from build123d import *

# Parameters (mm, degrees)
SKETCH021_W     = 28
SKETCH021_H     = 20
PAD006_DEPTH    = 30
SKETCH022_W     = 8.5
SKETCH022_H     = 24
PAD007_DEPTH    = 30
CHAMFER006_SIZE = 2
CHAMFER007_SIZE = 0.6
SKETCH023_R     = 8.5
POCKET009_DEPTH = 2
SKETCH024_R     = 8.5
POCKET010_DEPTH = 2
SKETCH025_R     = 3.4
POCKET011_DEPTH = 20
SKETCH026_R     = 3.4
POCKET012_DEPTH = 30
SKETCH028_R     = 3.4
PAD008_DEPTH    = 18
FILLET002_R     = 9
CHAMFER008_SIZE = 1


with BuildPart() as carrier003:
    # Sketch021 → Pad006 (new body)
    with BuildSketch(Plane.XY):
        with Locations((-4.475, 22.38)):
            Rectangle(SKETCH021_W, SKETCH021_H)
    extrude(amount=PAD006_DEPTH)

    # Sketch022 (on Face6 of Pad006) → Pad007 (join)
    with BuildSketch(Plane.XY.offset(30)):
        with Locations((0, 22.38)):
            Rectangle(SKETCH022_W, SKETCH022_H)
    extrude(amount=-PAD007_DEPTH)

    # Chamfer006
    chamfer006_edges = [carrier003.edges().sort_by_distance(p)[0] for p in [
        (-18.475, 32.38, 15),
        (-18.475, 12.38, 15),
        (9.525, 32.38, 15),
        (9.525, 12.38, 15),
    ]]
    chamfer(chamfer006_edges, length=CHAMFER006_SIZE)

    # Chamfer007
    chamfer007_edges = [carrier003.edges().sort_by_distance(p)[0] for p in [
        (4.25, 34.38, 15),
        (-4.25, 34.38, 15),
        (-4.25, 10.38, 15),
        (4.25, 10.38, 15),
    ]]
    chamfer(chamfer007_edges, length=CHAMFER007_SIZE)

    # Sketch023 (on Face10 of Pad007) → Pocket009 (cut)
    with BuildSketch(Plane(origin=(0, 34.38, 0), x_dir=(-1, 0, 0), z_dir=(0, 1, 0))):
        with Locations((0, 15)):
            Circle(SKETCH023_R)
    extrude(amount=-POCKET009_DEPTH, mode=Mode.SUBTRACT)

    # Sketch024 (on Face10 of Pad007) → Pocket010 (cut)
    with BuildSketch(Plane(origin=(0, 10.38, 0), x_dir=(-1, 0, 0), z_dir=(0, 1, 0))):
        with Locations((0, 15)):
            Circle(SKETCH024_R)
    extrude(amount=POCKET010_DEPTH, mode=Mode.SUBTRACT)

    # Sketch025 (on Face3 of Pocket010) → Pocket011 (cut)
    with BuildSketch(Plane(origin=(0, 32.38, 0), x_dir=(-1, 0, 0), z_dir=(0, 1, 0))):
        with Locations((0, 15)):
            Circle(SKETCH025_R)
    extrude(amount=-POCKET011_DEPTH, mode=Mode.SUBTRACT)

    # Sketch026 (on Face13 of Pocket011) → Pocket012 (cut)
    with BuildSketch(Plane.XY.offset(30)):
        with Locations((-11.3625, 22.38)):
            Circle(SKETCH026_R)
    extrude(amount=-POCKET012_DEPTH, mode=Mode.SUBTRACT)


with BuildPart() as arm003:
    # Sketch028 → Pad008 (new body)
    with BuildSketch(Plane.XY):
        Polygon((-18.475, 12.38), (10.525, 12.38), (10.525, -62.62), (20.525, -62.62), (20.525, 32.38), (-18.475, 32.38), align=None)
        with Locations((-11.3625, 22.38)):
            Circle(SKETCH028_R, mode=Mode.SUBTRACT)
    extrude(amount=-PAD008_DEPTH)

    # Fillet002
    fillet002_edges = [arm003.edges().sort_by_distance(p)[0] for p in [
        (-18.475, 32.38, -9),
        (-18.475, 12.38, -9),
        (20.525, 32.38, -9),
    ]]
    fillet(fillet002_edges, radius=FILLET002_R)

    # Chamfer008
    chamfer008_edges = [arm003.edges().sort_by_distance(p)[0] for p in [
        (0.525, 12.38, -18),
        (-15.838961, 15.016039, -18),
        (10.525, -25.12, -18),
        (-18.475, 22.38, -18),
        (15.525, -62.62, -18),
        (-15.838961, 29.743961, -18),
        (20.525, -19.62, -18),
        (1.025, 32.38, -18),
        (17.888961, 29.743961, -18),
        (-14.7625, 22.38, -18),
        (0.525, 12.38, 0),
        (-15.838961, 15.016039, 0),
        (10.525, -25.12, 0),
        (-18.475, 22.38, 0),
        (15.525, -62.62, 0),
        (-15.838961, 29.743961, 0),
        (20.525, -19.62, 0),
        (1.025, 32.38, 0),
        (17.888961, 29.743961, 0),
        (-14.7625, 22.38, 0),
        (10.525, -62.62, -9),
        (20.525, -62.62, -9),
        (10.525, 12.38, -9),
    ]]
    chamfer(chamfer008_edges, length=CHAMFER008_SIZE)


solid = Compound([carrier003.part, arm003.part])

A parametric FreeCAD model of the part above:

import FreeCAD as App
import Part
import Sketcher


def edges_at(feature, points):
    """Names of the edges that pass closest to the given points."""
    edges = feature.Shape.Edges
    near = lambda p: min(range(len(edges)), key=lambda i: edges[i].distToShape(Part.Vertex(*p))[0])
    return sorted({f"Edge{near(p) + 1}" for p in points})


def add_polygon(sketch, points):
    """Adds a closed chain of lines whose ends are joined by coincident constraints."""
    first, n = sketch.GeometryCount, len(points)
    for a, b in zip(points, points[1:] + points[:1]):
        sketch.addGeometry(Part.LineSegment(App.Vector(*a, 0), App.Vector(*b, 0)), False)
    for i in range(n):
        sketch.addConstraint(Sketcher.Constraint("Coincident", first + i, 2, first + (i + 1) % n, 1))

doc = App.newDocument("Part")
body = doc.addObject("PartDesign::Body", "Body")

# Sketch on XY plane
sketch1 = body.newObject("Sketcher::SketchObject", "Sketch")
sketch1.AttachmentSupport = (doc.getObject("XY_Plane"), [""])
sketch1.MapMode = "FlatFace"
add_polygon(sketch1, [(-18, 32), (-18, 12), (10, 12), (10, 32)])  # lines 0-3
sketch1.addConstraint(Sketcher.Constraint("Vertical", 0))
sketch1.addConstraint(Sketcher.Constraint("Horizontal", 1))
sketch1.addConstraint(Sketcher.Constraint("Vertical", 2))
sketch1.addConstraint(Sketcher.Constraint("Horizontal", 3))
sketch1.addConstraint(Sketcher.Constraint("DistanceX", 1, 1, 1, 2, 28.0))
sketch1.addConstraint(Sketcher.Constraint("DistanceY", 0, 2, 0, 1, 20.0))
sketch1.addConstraint(Sketcher.Constraint("DistanceY", -1, 1, 0, 2, 12.38))
sketch1.addConstraint(Sketcher.Constraint("DistanceX", 0, 2, -1, 1, 18.475))
pad1 = body.newObject("PartDesign::Pad", "Pad")
pad1.Profile = sketch1
pad1.Length = 30

# Sketch on XY plane
sketch2 = body.newObject("Sketcher::SketchObject", "Sketch001")
sketch2.AttachmentSupport = (doc.getObject("XY_Plane"), [""])
sketch2.MapMode = "FlatFace"
sketch2.AttachmentOffset = App.Placement(App.Vector(0, 0, 30), App.Rotation())
add_polygon(sketch2, [(-4, 34), (-4, 10), (4, 10), (4, 34)])  # lines 0-3
sketch2.addConstraint(Sketcher.Constraint("Vertical", 0))
sketch2.addConstraint(Sketcher.Constraint("Horizontal", 1))
sketch2.addConstraint(Sketcher.Constraint("Vertical", 2))
sketch2.addConstraint(Sketcher.Constraint("Horizontal", 3))
sketch2.addConstraint(Sketcher.Constraint("DistanceY", 0, 2, 0, 1, 24.0))
sketch2.addConstraint(Sketcher.Constraint("DistanceX", 1, 1, 1, 2, 8.5))
sketch2.addConstraint(Sketcher.Constraint("DistanceX", 0, 2, -1, 1, 4.25))
sketch2.addConstraint(Sketcher.Constraint("DistanceY", -1, 1, 0, 2, 10.38))
pad2 = body.newObject("PartDesign::Pad", "Pad001")
pad2.Profile = sketch2
pad2.Length = 30
pad2.Reversed = True
doc.recompute()

chamfer = body.newObject("PartDesign::Chamfer", "Chamfer")
chamfer.Base = (pad2, edges_at(pad2, [
    (-18.475, 32.38, 15),
    (-18.475, 12.38, 15),
    (9.525, 32.38, 15),
    (9.525, 12.38, 15),
]))
chamfer.Size = 2
doc.recompute()

chamfer2 = body.newObject("PartDesign::Chamfer", "Chamfer001")
chamfer2.Base = (chamfer, edges_at(chamfer, [
    (4.25, 34.38, 15),
    (-4.25, 34.38, 15),
    (-4.25, 10.38, 15),
    (4.25, 10.38, 15),
]))
chamfer2.Size = 0.6

# Sketch on XZ plane
sketch3 = body.newObject("Sketcher::SketchObject", "Sketch002")
sketch3.AttachmentSupport = (doc.getObject("XZ_Plane"), [""])
sketch3.MapMode = "FlatFace"
sketch3.AttachmentOffset = App.Placement(App.Vector(0, 0, -34.38), App.Rotation())
sketch3.addGeometry(Part.Circle(App.Vector(0, 15, 0), App.Vector(0, 0, 1), 8), False)
sketch3.addConstraint(Sketcher.Constraint("PointOnObject", 0, 3, -2))
sketch3.addConstraint(Sketcher.Constraint("Diameter", 0, 17.0))
sketch3.addConstraint(Sketcher.Constraint("DistanceY", -1, 1, 0, 3, 15.0))
pocket1 = body.newObject("PartDesign::Pocket", "Pocket")
pocket1.Profile = sketch3
pocket1.Length = 2
pocket1.Reversed = True

# Sketch on XZ plane
sketch4 = body.newObject("Sketcher::SketchObject", "Sketch003")
sketch4.AttachmentSupport = (doc.getObject("XZ_Plane"), [""])
sketch4.MapMode = "FlatFace"
sketch4.AttachmentOffset = App.Placement(App.Vector(0, 0, -10.38), App.Rotation())
sketch4.addGeometry(Part.Circle(App.Vector(0, 15, 0), App.Vector(0, 0, 1), 8), False)
sketch4.addConstraint(Sketcher.Constraint("PointOnObject", 0, 3, -2))
sketch4.addConstraint(Sketcher.Constraint("Diameter", 0, 17.0))
sketch4.addConstraint(Sketcher.Constraint("DistanceY", -1, 1, 0, 3, 15.0))
pocket2 = body.newObject("PartDesign::Pocket", "Pocket001")
pocket2.Profile = sketch4
pocket2.Length = 2

# Sketch on XZ plane
sketch5 = body.newObject("Sketcher::SketchObject", "Sketch004")
sketch5.AttachmentSupport = (doc.getObject("XZ_Plane"), [""])
sketch5.MapMode = "FlatFace"
sketch5.AttachmentOffset = App.Placement(App.Vector(0, 0, -32.38), App.Rotation())
sketch5.addGeometry(Part.Circle(App.Vector(0, 15, 0), App.Vector(0, 0, 1), 3.4), False)
sketch5.addConstraint(Sketcher.Constraint("PointOnObject", 0, 3, -2))
sketch5.addConstraint(Sketcher.Constraint("Diameter", 0, 6.8))
sketch5.addConstraint(Sketcher.Constraint("DistanceY", -1, 1, 0, 3, 15.0))
pocket3 = body.newObject("PartDesign::Pocket", "Pocket002")
pocket3.Profile = sketch5
pocket3.Length = 20
pocket3.Reversed = True

# Sketch on XY plane
sketch6 = body.newObject("Sketcher::SketchObject", "Sketch005")
sketch6.AttachmentSupport = (doc.getObject("XY_Plane"), [""])
sketch6.MapMode = "FlatFace"
sketch6.AttachmentOffset = App.Placement(App.Vector(0, 0, 30), App.Rotation())
sketch6.addGeometry(Part.Circle(App.Vector(-11.4, 22.4, 0), App.Vector(0, 0, 1), 3.4), False)
sketch6.addConstraint(Sketcher.Constraint("Diameter", 0, 6.8))
sketch6.addConstraint(Sketcher.Constraint("DistanceY", -1, 1, 0, 3, 22.38))
sketch6.addConstraint(Sketcher.Constraint("DistanceX", 0, 3, -1, 1, 11.3625))
pocket4 = body.newObject("PartDesign::Pocket", "Pocket003")
pocket4.Profile = sketch6
pocket4.Length = 30
body2 = doc.addObject("PartDesign::Body", "Body001")

# Sketch on XY plane
sketch7 = body2.newObject("Sketcher::SketchObject", "Sketch006")
sketch7.AttachmentSupport = (doc.getObject("XY_Plane001"), [""])
sketch7.MapMode = "FlatFace"
add_polygon(sketch7, [(-18.5, 12.4), (10.5, 12.4), (10.5, -62.6), (20.5, -62.6), (20.5, 32.4), (-18.5, 32.4)])  # lines 0-5
sketch7.addGeometry(Part.Circle(App.Vector(-11.4, 22.4, 0), App.Vector(0, 0, 1), 3.4), False)  # 6
sketch7.addConstraint(Sketcher.Constraint("Horizontal", 0))
sketch7.addConstraint(Sketcher.Constraint("Vertical", 1))
sketch7.addConstraint(Sketcher.Constraint("Horizontal", 2))
sketch7.addConstraint(Sketcher.Constraint("Vertical", 3))
sketch7.addConstraint(Sketcher.Constraint("Horizontal", 4))
sketch7.addConstraint(Sketcher.Constraint("Vertical", 5))
sketch7.addConstraint(Sketcher.Constraint("Diameter", 6, 6.8))
sketch7.addConstraint(Sketcher.Constraint("DistanceX", 0, 1, 0, 2, 29.0))
sketch7.addConstraint(Sketcher.Constraint("DistanceX", 2, 1, 2, 2, 10.0))
sketch7.addConstraint(Sketcher.Constraint("DistanceY", 1, 2, 1, 1, 75.0))
sketch7.addConstraint(Sketcher.Constraint("DistanceY", 3, 1, 3, 2, 95.0))
sketch7.addConstraint(Sketcher.Constraint("DistanceY", 0, 2, 6, 3, 10.0))
sketch7.addConstraint(Sketcher.Constraint("DistanceY", -1, 1, 6, 3, 22.38))
sketch7.addConstraint(Sketcher.Constraint("DistanceX", -1, 1, 0, 2, 10.525))
sketch7.addConstraint(Sketcher.Constraint("DistanceX", 6, 3, -1, 1, 11.3625))
pad3 = body2.newObject("PartDesign::Pad", "Pad002")
pad3.Profile = sketch7
pad3.Length = 18
pad3.Reversed = True
doc.recompute()

fillet = body2.newObject("PartDesign::Fillet", "Fillet")
fillet.Base = (pad3, edges_at(pad3, [(-18.475, 32.38, -9), (-18.475, 12.38, -9), (20.525, 32.38, -9)]))
fillet.Radius = 9
doc.recompute()

chamfer3 = body2.newObject("PartDesign::Chamfer", "Chamfer002")
chamfer3.Base = (fillet, ["Edge1"])
chamfer3.UseAllEdges = True
chamfer3.Size = 1

doc.recompute()
